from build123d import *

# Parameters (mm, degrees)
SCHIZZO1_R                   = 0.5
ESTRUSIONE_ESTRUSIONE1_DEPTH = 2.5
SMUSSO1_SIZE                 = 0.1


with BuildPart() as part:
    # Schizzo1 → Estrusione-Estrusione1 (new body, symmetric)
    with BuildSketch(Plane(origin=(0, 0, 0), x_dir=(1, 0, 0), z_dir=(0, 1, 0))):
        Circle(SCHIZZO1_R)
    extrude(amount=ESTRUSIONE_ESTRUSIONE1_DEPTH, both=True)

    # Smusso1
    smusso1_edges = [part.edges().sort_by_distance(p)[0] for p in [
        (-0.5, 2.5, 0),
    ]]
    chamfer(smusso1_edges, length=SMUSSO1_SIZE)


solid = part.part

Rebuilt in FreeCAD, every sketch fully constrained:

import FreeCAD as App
import Part
import Sketcher

V = App.Vector
Q = App.Units.Quantity


def edges_at(feature, points):
    """Names of the edges that pass closest to the given points."""
    edges = feature.Shape.Edges
    near = lambda p: min(range(len(edges)), key=lambda i: edges[i].distToShape(Part.Vertex(*p))[0])
    return sorted({f"Edge{near(p) + 1}" for p in points})

doc = App.newDocument("Part")
body = doc.addObject("PartDesign::Body", "Body")

sketch1 = body.newObject("Sketcher::SketchObject", "Sketch")
sketch1.AttachmentSupport = (doc.getObject("XZ_Plane"), [""])
sketch1.MapMode = "FlatFace"
sketch1.addGeometry(Part.Circle(V(0, 0, 0), V(0, 0, 1), 0.5), False)
sketch1.addConstraint(Sketcher.Constraint("Coincident", 0, 3, -1, 1))
sketch1.addConstraint(Sketcher.Constraint("Diameter", 0, Q("1 mm")))
pad1 = body.newObject("PartDesign::Pad", "Pad")
pad1.Profile = sketch1
pad1.Length = 5
pad1.Midplane = True
doc.recompute()

chamfer = body.newObject("PartDesign::Chamfer", "Chamfer")
chamfer.Base = (pad1, edges_at(pad1, [(-0.5, 2.5, 0)]))
chamfer.Size = 0.1

doc.recompute()
